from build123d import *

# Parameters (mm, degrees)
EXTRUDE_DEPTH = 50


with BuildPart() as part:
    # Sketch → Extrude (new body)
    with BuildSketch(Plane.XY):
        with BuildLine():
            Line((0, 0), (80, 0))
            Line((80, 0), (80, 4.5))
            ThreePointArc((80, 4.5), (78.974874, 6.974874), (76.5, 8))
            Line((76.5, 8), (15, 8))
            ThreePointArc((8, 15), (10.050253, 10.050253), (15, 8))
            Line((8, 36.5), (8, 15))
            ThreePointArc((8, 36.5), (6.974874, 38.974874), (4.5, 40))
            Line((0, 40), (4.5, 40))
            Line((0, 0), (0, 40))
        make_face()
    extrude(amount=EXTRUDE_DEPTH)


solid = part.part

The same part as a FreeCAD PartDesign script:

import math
import FreeCAD as App
import Part
import Sketcher
from FreeCAD import Vector

doc = App.newDocument("Part")
params = doc.addObject("Spreadsheet::Sheet", "Params")
for row, (alias, value) in enumerate([
    ("sketch1_radius", "7.000002 mm"),
    ("sketch1_radius2", "3.499999 mm"),
    ("sketch1_width", "80 mm"),
    ("sketch1_height", "40 mm"),
    ("sketch1_width2", "61.5 mm"),
    ("pad1_length", "50 mm"),
], start=1):
    params.set(f"A{row}", alias)
    params.set(f"B{row}", "=" + value)
    params.setAlias(f"B{row}", alias)

body = doc.addObject("PartDesign::Body", "Body")

# Sketch on XY plane
sketch1 = body.newObject("Sketcher::SketchObject", "Sketch")
sketch1.AttachmentSupport = (doc.getObject("XY_Plane"), [""])
sketch1.MapMode = "FlatFace"
sketch1.addGeometry([
    Part.LineSegment(Vector(0, 0, 0), Vector(80, 0, 0)),  # 0
    Part.LineSegment(Vector(80, 0, 0), Vector(80, 4.5, 0)),  # 1
    Part.ArcOfCircle(Part.Circle(Vector(76.5, 4.5, 0), Vector(0, 0, 1), 3.5), math.radians(0), math.radians(90)),  # 2
    Part.LineSegment(Vector(76.5, 8, 0), Vector(15, 8, 0)),  # 3
    Part.ArcOfCircle(Part.Circle(Vector(15, 15, 0), Vector(0, 0, 1), 7), math.radians(-180), math.radians(-90)),  # 4
    Part.LineSegment(Vector(8, 15, 0), Vector(8, 36.5, 0)),  # 5
    Part.ArcOfCircle(Part.Circle(Vector(4.5, 36.5, 0), Vector(0, 0, 1), 3.5), math.radians(0), math.radians(90)),  # 6
    Part.LineSegment(Vector(4.5, 40, 0), Vector(0, 40, 0)),  # 7
    Part.LineSegment(Vector(0, 40, 0), Vector(0, 0, 0)),  # 8
], False)
sketch1.addConstraint([
    Sketcher.Constraint("Coincident", 0, 2, 1, 1),
    Sketcher.Constraint("Tangent", 1, 2, 2, 1),
    Sketcher.Constraint("Tangent", 2, 2, 3, 1),
    Sketcher.Constraint("Tangent", 3, 2, 4, 2),
    Sketcher.Constraint("Tangent", 4, 1, 5, 1),
    Sketcher.Constraint("Tangent", 5, 2, 6, 1),
    Sketcher.Constraint("Tangent", 6, 2, 7, 1),
    Sketcher.Constraint("Coincident", 7, 2, 8, 1),
    Sketcher.Constraint("Coincident", 8, 2, 0, 1),
    Sketcher.Constraint("Horizontal", 0),
    Sketcher.Constraint("Vertical", 1),
    Sketcher.Constraint("Horizontal", 3),
    Sketcher.Constraint("Vertical", 5),
    Sketcher.Constraint("Horizontal", 7),
    Sketcher.Constraint("Vertical", 8),
    Sketcher.Constraint("Coincident", 8, 2, -1, 1),
    Sketcher.Constraint("Equal", 2, 6),
    Sketcher.Constraint("Equal", 7, 1),
    Sketcher.Constraint("Radius", 4, 7.000002),
    Sketcher.Constraint("Radius", 2, 3.499999),
    Sketcher.Constraint("DistanceX", 0, 1, 0, 2, 80.0),
    Sketcher.Constraint("DistanceY", 8, 2, 8, 1, 40.0),
    Sketcher.Constraint("DistanceX", 3, 2, 3, 1, 61.5),
])
sketch1.setExpression("Constraints[18]", "Params.sketch1_radius")
sketch1.setExpression("Constraints[19]", "Params.sketch1_radius2")
sketch1.setExpression("Constraints[20]", "Params.sketch1_width")
sketch1.setExpression("Constraints[21]", "Params.sketch1_height")
sketch1.setExpression("Constraints[22]", "Params.sketch1_width2")
pad1 = body.newObject("PartDesign::Pad", "Pad")
pad1.Profile = sketch1
pad1.setExpression("Length", "Params.pad1_length")

doc.recompute()
